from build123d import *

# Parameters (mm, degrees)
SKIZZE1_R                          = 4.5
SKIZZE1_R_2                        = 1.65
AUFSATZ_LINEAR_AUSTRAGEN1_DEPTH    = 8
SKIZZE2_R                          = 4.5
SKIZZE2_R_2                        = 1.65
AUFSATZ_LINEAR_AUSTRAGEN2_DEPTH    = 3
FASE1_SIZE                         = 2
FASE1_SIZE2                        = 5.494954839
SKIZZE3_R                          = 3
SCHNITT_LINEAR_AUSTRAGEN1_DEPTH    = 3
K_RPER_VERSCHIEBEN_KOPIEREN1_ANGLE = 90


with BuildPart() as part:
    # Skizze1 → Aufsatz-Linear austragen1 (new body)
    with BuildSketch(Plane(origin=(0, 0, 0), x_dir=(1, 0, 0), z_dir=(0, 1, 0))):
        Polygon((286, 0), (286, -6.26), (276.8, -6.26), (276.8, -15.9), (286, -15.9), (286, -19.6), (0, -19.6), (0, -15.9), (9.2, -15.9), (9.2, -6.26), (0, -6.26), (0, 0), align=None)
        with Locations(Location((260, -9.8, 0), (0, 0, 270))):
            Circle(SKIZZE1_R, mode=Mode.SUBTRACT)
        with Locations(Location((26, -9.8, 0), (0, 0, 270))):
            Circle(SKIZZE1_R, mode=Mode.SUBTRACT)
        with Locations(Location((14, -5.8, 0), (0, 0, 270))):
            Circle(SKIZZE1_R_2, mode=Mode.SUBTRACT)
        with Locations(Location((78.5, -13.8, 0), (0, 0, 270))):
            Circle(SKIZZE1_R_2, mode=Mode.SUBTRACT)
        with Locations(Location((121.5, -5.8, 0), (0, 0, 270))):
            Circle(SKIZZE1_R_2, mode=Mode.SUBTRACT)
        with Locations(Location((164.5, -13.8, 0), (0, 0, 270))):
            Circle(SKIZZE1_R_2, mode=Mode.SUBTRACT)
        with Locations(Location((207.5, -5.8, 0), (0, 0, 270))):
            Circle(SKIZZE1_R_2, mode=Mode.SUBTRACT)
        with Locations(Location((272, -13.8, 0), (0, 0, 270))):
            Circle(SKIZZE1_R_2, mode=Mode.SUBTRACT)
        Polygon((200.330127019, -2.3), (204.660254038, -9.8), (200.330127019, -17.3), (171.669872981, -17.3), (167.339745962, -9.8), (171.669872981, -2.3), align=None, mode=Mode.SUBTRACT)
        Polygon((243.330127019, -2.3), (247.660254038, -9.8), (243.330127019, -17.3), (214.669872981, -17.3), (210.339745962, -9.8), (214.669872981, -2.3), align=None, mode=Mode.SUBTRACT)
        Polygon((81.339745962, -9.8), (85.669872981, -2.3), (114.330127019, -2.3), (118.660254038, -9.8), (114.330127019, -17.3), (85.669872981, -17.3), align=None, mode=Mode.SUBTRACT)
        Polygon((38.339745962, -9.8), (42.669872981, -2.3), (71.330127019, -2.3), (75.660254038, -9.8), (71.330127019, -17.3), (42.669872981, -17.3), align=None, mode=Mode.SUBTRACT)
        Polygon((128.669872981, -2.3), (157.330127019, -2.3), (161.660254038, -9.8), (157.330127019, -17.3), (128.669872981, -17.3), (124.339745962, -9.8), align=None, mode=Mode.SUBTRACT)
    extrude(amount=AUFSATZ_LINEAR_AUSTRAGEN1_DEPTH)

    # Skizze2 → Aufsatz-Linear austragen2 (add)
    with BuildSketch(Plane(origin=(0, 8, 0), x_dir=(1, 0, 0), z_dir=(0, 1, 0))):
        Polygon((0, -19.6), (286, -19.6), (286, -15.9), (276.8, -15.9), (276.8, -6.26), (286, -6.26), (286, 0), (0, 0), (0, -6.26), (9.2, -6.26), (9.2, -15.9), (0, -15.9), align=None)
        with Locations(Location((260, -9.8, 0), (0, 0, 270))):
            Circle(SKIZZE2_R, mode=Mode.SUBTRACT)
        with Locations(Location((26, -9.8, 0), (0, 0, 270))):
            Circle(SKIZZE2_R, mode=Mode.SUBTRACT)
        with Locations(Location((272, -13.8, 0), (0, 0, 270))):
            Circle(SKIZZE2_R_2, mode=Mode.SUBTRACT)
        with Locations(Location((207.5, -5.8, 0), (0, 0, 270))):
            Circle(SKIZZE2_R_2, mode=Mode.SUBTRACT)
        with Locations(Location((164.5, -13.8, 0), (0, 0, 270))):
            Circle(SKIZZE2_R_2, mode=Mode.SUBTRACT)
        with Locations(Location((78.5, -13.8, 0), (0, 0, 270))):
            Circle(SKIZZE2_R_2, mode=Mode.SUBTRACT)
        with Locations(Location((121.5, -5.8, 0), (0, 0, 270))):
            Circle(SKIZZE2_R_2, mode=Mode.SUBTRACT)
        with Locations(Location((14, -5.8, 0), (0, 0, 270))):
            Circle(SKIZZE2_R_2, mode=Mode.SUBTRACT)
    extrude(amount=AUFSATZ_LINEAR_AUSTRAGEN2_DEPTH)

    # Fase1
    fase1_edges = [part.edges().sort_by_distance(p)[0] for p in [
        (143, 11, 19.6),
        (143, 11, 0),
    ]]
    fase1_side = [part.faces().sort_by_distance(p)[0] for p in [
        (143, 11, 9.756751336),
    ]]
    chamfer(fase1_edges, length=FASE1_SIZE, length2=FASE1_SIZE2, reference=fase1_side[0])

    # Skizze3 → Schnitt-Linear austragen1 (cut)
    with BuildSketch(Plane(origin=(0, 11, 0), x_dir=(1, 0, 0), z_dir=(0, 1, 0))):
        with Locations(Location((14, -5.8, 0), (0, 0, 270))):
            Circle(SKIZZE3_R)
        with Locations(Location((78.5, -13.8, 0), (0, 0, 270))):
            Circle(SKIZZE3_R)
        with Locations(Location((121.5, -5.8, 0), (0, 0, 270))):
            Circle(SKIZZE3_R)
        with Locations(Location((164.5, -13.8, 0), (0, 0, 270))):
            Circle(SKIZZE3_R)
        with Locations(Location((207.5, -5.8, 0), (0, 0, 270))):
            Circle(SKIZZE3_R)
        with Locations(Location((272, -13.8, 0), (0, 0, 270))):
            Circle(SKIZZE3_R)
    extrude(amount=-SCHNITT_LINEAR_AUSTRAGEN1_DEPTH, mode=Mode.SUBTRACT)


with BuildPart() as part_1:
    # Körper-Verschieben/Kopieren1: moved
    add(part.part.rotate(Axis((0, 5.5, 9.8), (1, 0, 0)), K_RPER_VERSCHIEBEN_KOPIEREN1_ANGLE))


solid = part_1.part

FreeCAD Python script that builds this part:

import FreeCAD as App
import Part
import Sketcher
Q = App.Units.Quantity


def edges_at(feature, points):
    """Names of the edges that pass closest to the given points."""
    edges = feature.Shape.Edges
    near = lambda p: min(range(len(edges)), key=lambda i: edges[i].distToShape(Part.Vertex(*p))[0])
    return sorted({f"Edge{near(p) + 1}" for p in points})


def add_polygon(sketch, points):
    """Adds a closed chain of lines whose ends are joined by coincident constraints."""
    first, n = sketch.GeometryCount, len(points)
    for a, b in zip(points, points[1:] + points[:1]):
        sketch.addGeometry(Part.LineSegment(App.Vector(*a, 0), App.Vector(*b, 0)), False)
    for i in range(n):
        sketch.addConstraint(Sketcher.Constraint("Coincident", first + i, 2, first + (i + 1) % n, 1))

doc = App.newDocument("Part")
body = doc.addObject("PartDesign::Body", "Body")

sketch1 = doc.addObject("Sketcher::SketchObject", "Sketch")
body.addObject(sketch1)
sketch1.AttachmentSupport = (doc.XZ_Plane, [""])
sketch1.MapMode = "FlatFace"
add_polygon(sketch1, [(286, 6.3), (286, 0), (0, 0), (0, 6.3), (9.2, 6.3), (9.2, 15.9), (0, 15.9), (0, 19.6), (286, 19.6), (286, 15.9), (276.8, 15.9), (276.8, 6.3)])
sketch1.addGeometry(Part.Circle(App.Vector(272, 13.8, 0), App.Vector(0, 0, 1), 1.6), False)
sketch1.addGeometry(Part.Circle(App.Vector(164.5, 13.8, 0), App.Vector(0, 0, 1), 1.6), False)
sketch1.addGeometry(Part.Circle(App.Vector(78.5, 13.8, 0), App.Vector(0, 0, 1), 1.6), False)
sketch1.addGeometry(Part.Circle(App.Vector(260, 9.8, 0), App.Vector(0, 0, 1), 4.5), False)
add_polygon(sketch1, [(243.3, 2.3), (247.7, 9.8), (243.3, 17.3), (214.7, 17.3), (210.3, 9.8), (214.7, 2.3)])
add_polygon(sketch1, [(200.3, 2.3), (204.7, 9.8), (200.3, 17.3), (171.7, 17.3), (167.3, 9.8), (171.7, 2.3)])
sketch1.addGeometry(Part.Circle(App.Vector(207.5, 5.8, 0), App.Vector(0, 0, 1), 1.6), False)
add_polygon(sketch1, [(128.7, 2.3), (157.3, 2.3), (161.7, 9.8), (157.3, 17.3), (128.7, 17.3), (124.3, 9.8)])
add_polygon(sketch1, [(81.3, 9.8), (85.7, 2.3), (114.3, 2.3), (118.7, 9.8), (114.3, 17.3), (85.7, 17.3)])
add_polygon(sketch1, [(38.3, 9.8), (42.7, 2.3), (71.3, 2.3), (75.7, 9.8), (71.3, 17.3), (42.7, 17.3)])
sketch1.addGeometry(Part.Circle(App.Vector(26, 9.8, 0), App.Vector(0, 0, 1), 4.5), False)
sketch1.addGeometry(Part.Circle(App.Vector(121.5, 5.8, 0), App.Vector(0, 0, 1), 1.6), False)
sketch1.addGeometry(Part.Circle(App.Vector(14, 5.8, 0), App.Vector(0, 0, 1), 1.6), False)
sketch1.addConstraint([
    Sketcher.Constraint("Vertical", 0),
    Sketcher.Constraint("Horizontal", 1),
    Sketcher.Constraint("Vertical", 2),
    Sketcher.Constraint("Horizontal", 3),
    Sketcher.Constraint("Vertical", 4),
    Sketcher.Constraint("Horizontal", 5),
    Sketcher.Constraint("Vertical", 6),
    Sketcher.Constraint("Horizontal", 7),
    Sketcher.Constraint("Vertical", 8),
    Sketcher.Constraint("Horizontal", 9),
    Sketcher.Constraint("Vertical", 10),
    Sketcher.Constraint("Horizontal", 11),
    Sketcher.Constraint("Horizontal", 18),
    Sketcher.Constraint("Horizontal", 21),
    Sketcher.Constraint("Horizontal", 24),
    Sketcher.Constraint("Horizontal", 27),
    Sketcher.Constraint("Horizontal", 29),
    Sketcher.Constraint("Horizontal", 32),
    Sketcher.Constraint("Horizontal", 36),
    Sketcher.Constraint("Horizontal", 39),
    Sketcher.Constraint("Horizontal", 42),
    Sketcher.Constraint("Horizontal", 45),
    Sketcher.Constraint("Coincident", 1, 2, -1, 1),
    Sketcher.Constraint("Equal", 12, 13),
    Sketcher.Constraint("Equal", 13, 14),
    Sketcher.Constraint("Equal", 14, 28),
    Sketcher.Constraint("Equal", 15, 47),
    Sketcher.Constraint("Equal", 28, 48),
    Sketcher.Constraint("Equal", 48, 49),
    Sketcher.Constraint("PointOnObject", 5, 2, -2),
    Sketcher.Constraint("Parallel", 16, 19),
    Sketcher.Constraint("Parallel", 17, 20),
    Sketcher.Constraint("Parallel", 19, 22),
    Sketcher.Constraint("Parallel", 20, 23),
    Sketcher.Constraint("Parallel", 22, 25),
    Sketcher.Constraint("Parallel", 23, 26),
    Sketcher.Constraint("Parallel", 25, 30),
    Sketcher.Constraint("Parallel", 26, 31),
    Sketcher.Constraint("Parallel", 30, 33),
    Sketcher.Constraint("Parallel", 31, 34),
    Sketcher.Constraint("Parallel", 34, 35),
    Sketcher.Constraint("Parallel", 33, 37),
    Sketcher.Constraint("Parallel", 35, 38),
    Sketcher.Constraint("Parallel", 37, 40),
    Sketcher.Constraint("Parallel", 38, 41),
    Sketcher.Constraint("Parallel", 40, 43),
    Sketcher.Constraint("Parallel", 41, 44),
    Sketcher.Constraint("Parallel", 43, 46),
    Sketcher.Constraint("Horizontal", 12, 3, 13, 3),
    Sketcher.Constraint("Horizontal", 13, 3, 14, 3),
    Sketcher.Constraint("Horizontal", 15, 3, 47, 3),
    Sketcher.Constraint("Horizontal", 28, 3, 48, 3),
    Sketcher.Constraint("Horizontal", 48, 3, 49, 3),
    Sketcher.Constraint("Horizontal", 5, 2, 8, 2),
    Sketcher.Constraint("Horizontal", 3, 2, 10, 2),
    Sketcher.Constraint("Horizontal", 47, 3, 16, 2),
    Sketcher.Constraint("Horizontal", 16, 2, 19, 2),
    Sketcher.Constraint("Horizontal", 19, 2, 22, 2),
    Sketcher.Constraint("Horizontal", 18, 2, 23, 2),
    Sketcher.Constraint("Horizontal", 22, 2, 25, 2),
    Sketcher.Constraint("Horizontal", 21, 2, 26, 2),
    Sketcher.Constraint("Horizontal", 27, 2, 29, 2),
    Sketcher.Constraint("Horizontal", 25, 2, 30, 2),
    Sketcher.Constraint("Horizontal", 24, 2, 31, 2),
    Sketcher.Constraint("Horizontal", 30, 2, 33, 2),
    Sketcher.Constraint("Horizontal", 34, 2, 35, 2),
    Sketcher.Constraint("Horizontal", 33, 2, 37, 2),
    Sketcher.Constraint("Horizontal", 32, 2, 38, 2),
    Sketcher.Constraint("Horizontal", 37, 2, 40, 2),
    Sketcher.Constraint("Horizontal", 36, 2, 41, 2),
    Sketcher.Constraint("Horizontal", 40, 2, 43, 2),
    Sketcher.Constraint("Horizontal", 39, 2, 44, 2),
    Sketcher.Constraint("Horizontal", 43, 2, 46, 2),
    Sketcher.Constraint("Vertical", 0, 2, 7, 2),
    Sketcher.Constraint("Vertical", 18, 2, 20, 2),
    Sketcher.Constraint("Vertical", 17, 2, 21, 2),
    Sketcher.Constraint("Equal", 5, 9),
    Sketcher.Constraint("Equal", 21, 24),
    Sketcher.Constraint("Equal", 27, 29),
    Sketcher.Constraint("Equal", 32, 36),
    Sketcher.Constraint("Equal", 39, 42),
    Sketcher.Constraint("Diameter", 15, Q("9 mm")),
    Sketcher.Constraint("Diameter", 12, Q("3.3 mm")),
    Sketcher.Constraint("DistanceX", 1, 2, 1, 1, Q("286 mm")),
    Sketcher.Constraint("Angle", 16, Q("60 deg")),
    Sketcher.Constraint("DistanceX", 3, 1, 3, 2, Q("9.2 mm")),
    Sketcher.Constraint("DistanceY", 6, 1, 6, 2, Q("3.7 mm")),
    Sketcher.Constraint("DistanceX", -1, 1, 12, 3, Q("272 mm")),
    Sketcher.Constraint("DistanceX", -1, 1, 15, 3, Q("260 mm")),
    Sketcher.Constraint("DistanceX", -1, 1, 47, 3, Q("26 mm")),
    Sketcher.Constraint("DistanceX", -1, 1, 49, 3, Q("14 mm")),
    Sketcher.Constraint("DistanceX", 14, 3, 13, 3, Q("86 mm")),
    Sketcher.Constraint("DistanceY", 15, 3, 12, 3, Q("4 mm")),
    Sketcher.Constraint("DistanceX", 13, 3, 28, 3, Q("43 mm")),
    Sketcher.Constraint("DistanceY", 28, 3, 13, 3, Q("8 mm")),
    Sketcher.Constraint("DistanceX", 48, 3, 13, 3, Q("43 mm")),
    Sketcher.Constraint("DistanceY", 20, 2, 18, 2, Q("15 mm")),
    Sketcher.Constraint("DistanceX", 35, 2, 34, 2, Q("43 mm")),
    Sketcher.Constraint("DistanceY", 0, 2, 0, 1, Q("6.26 mm")),
    Sketcher.Constraint("DistanceY", 4, 1, 4, 2, Q("9.64 mm")),
    Sketcher.Constraint("DistanceY", -1, 1, 12, 3, Q("13.8 mm")),
    Sketcher.Constraint("DistanceX", -1, 1, 13, 3, Q("164.5 mm")),
    Sketcher.Constraint("DistanceX", 18, 2, 18, 1, Q("28.660254 mm")),
    Sketcher.Constraint("DistanceX", 22, 2, 19, 2, Q("5.679492 mm")),
    Sketcher.Constraint("DistanceX", 29, 2, 25, 2, Q("10.009619 mm")),
    Sketcher.Constraint("DistanceX", 42, 2, 40, 2, Q("10.009619 mm")),
    Sketcher.Constraint("DistanceX", -1, 1, 16, 2, Q("247.660254 mm")),
])
pad1 = doc.addObject("PartDesign::Pad", "Pad")
body.addObject(pad1)
pad1.Profile = sketch1
pad1.Length = 8
pad1.Reversed = True

sketch2 = doc.addObject("Sketcher::SketchObject", "Sketch001")
body.addObject(sketch2)
sketch2.AttachmentSupport = (doc.XZ_Plane, [""])
sketch2.MapMode = "FlatFace"
sketch2.AttachmentOffset = App.Placement(App.Vector(0, 0, -8), App.Rotation())
add_polygon(sketch2, [(0, 19.6), (286, 19.6), (286, 15.9), (276.8, 15.9), (276.8, 6.3), (286, 6.3), (286, 0), (0, 0), (0, 6.3), (9.2, 6.3), (9.2, 15.9), (0, 15.9)])
sketch2.addGeometry(Part.Circle(App.Vector(78.5, 13.8, 0), App.Vector(0, 0, 1), 1.6), False)
sketch2.addGeometry(Part.Circle(App.Vector(164.5, 13.8, 0), App.Vector(0, 0, 1), 1.6), False)
sketch2.addGeometry(Part.Circle(App.Vector(272, 13.8, 0), App.Vector(0, 0, 1), 1.6), False)
sketch2.addGeometry(Part.Circle(App.Vector(26, 9.8, 0), App.Vector(0, 0, 1), 4.5), False)
sketch2.addGeometry(Part.Circle(App.Vector(14, 5.8, 0), App.Vector(0, 0, 1), 1.6), False)
sketch2.addGeometry(Part.Circle(App.Vector(121.5, 5.8, 0), App.Vector(0, 0, 1), 1.6), False)
sketch2.addGeometry(Part.Circle(App.Vector(260, 9.8, 0), App.Vector(0, 0, 1), 4.5), False)
sketch2.addGeometry(Part.Circle(App.Vector(207.5, 5.8, 0), App.Vector(0, 0, 1), 1.6), False)
sketch2.addConstraint([
    Sketcher.Constraint("Horizontal", 0),
    Sketcher.Constraint("Vertical", 1),
    Sketcher.Constraint("Horizontal", 2),
    Sketcher.Constraint("Vertical", 3),
    Sketcher.Constraint("Horizontal", 4),
    Sketcher.Constraint("Vertical", 5),
    Sketcher.Constraint("Horizontal", 6),
    Sketcher.Constraint("Vertical", 7),
    Sketcher.Constraint("Horizontal", 8),
    Sketcher.Constraint("Vertical", 9),
    Sketcher.Constraint("Horizontal", 10),
    Sketcher.Constraint("Vertical", 11),
    Sketcher.Constraint("Coincident", 6, 2, -1, 1),
    Sketcher.Constraint("Equal", 12, 13),
    Sketcher.Constraint("Equal", 13, 14),
    Sketcher.Constraint("Equal", 14, 16),
    Sketcher.Constraint("Equal", 16, 17),
    Sketcher.Constraint("Equal", 15, 18),
    Sketcher.Constraint("Equal", 17, 19),
    Sketcher.Constraint("PointOnObject", 10, 2, -2),
    Sketcher.Constraint("Horizontal", 12, 3, 13, 3),
    Sketcher.Constraint("Horizontal", 13, 3, 14, 3),
    Sketcher.Constraint("Horizontal", 16, 3, 17, 3),
    Sketcher.Constraint("Horizontal", 15, 3, 18, 3),
    Sketcher.Constraint("Horizontal", 17, 3, 19, 3),
    Sketcher.Constraint("Horizontal", 4, 2, 7, 2),
    Sketcher.Constraint("Horizontal", 2, 2, 9, 2),
    Sketcher.Constraint("Vertical", 1, 2, 4, 2),
    Sketcher.Constraint("Equal", 4, 8),
    Sketcher.Constraint("Diameter", 15, Q("9 mm")),
    Sketcher.Constraint("Diameter", 12, Q("3.3 mm")),
    Sketcher.Constraint("DistanceX", 0, 1, 0, 2, Q("286 mm")),
    Sketcher.Constraint("DistanceX", 2, 2, 2, 1, Q("9.2 mm")),
    Sketcher.Constraint("DistanceY", 1, 2, 1, 1, Q("3.7 mm")),
    Sketcher.Constraint("DistanceX", -1, 1, 14, 3, Q("272 mm")),
    Sketcher.Constraint("DistanceX", -1, 1, 15, 3, Q("26 mm")),
    Sketcher.Constraint("DistanceX", -1, 1, 16, 3, Q("14 mm")),
    Sketcher.Constraint("DistanceX", -1, 1, 18, 3, Q("260 mm")),
    Sketcher.Constraint("DistanceX", 12, 3, 13, 3, Q("86 mm")),
    Sketcher.Constraint("DistanceY", 15, 3, 12, 3, Q("4 mm")),
    Sketcher.Constraint("DistanceY", 16, 3, 15, 3, Q("4 mm")),
    Sketcher.Constraint("DistanceX", 12, 3, 17, 3, Q("43 mm")),
    Sketcher.Constraint("DistanceX", 13, 3, 19, 3, Q("43 mm")),
    Sketcher.Constraint("DistanceY", 3, 2, 3, 1, Q("9.64 mm")),
    Sketcher.Constraint("DistanceY", 5, 2, 5, 1, Q("6.26 mm")),
    Sketcher.Constraint("DistanceX", -1, 1, 12, 3, Q("78.5 mm")),
    Sketcher.Constraint("DistanceY", -1, 1, 12, 3, Q("13.8 mm")),
])
pad2 = doc.addObject("PartDesign::Pad", "Pad001")
body.addObject(pad2)
pad2.Profile = sketch2
pad2.Length = 3
pad2.Reversed = True
doc.recompute()

chamfer = doc.addObject("PartDesign::Chamfer", "Chamfer")
body.addObject(chamfer)
chamfer.Base = (pad2, edges_at(pad2, [(143, 11, 19.6), (143, 11, 0)]))
chamfer.ChamferType = "Two distances"
chamfer.Size = 2
chamfer.Size2 = 5.494955

sketch3 = doc.addObject("Sketcher::SketchObject", "Sketch002")
body.addObject(sketch3)
sketch3.AttachmentSupport = (doc.XZ_Plane, [""])
sketch3.MapMode = "FlatFace"
sketch3.AttachmentOffset = App.Placement(App.Vector(0, 0, -11), App.Rotation())
sketch3.addGeometry([
    Part.Circle(App.Vector(14, 5.8, 0), App.Vector(0, 0, 1), 3),
    Part.Circle(App.Vector(78.5, 13.8, 0), App.Vector(0, 0, 1), 3),
    Part.Circle(App.Vector(121.5, 5.8, 0), App.Vector(0, 0, 1), 3),
    Part.Circle(App.Vector(164.5, 13.8, 0), App.Vector(0, 0, 1), 3),
    Part.Circle(App.Vector(207.5, 5.8, 0), App.Vector(0, 0, 1), 3),
    Part.Circle(App.Vector(272, 13.8, 0), App.Vector(0, 0, 1), 3),
], False)
sketch3.addConstraint([
    Sketcher.Constraint("Equal", 0, 1),
    Sketcher.Constraint("Equal", 1, 2),
    Sketcher.Constraint("Equal", 2, 3),
    Sketcher.Constraint("Equal", 3, 4),
    Sketcher.Constraint("Equal", 4, 5),
    Sketcher.Constraint("Horizontal", 0, 3, 2, 3),
    Sketcher.Constraint("Horizontal", 1, 3, 3, 3),
    Sketcher.Constraint("Horizontal", 2, 3, 4, 3),
    Sketcher.Constraint("Horizontal", 3, 3, 5, 3),
    Sketcher.Constraint("Diameter", 0, Q("6 mm")),
    Sketcher.Constraint("DistanceX", -1, 1, 0, 3, Q("14 mm")),
    Sketcher.Constraint("DistanceX", -1, 1, 5, 3, Q("272 mm")),
    Sketcher.Constraint("DistanceY", 0, 3, 1, 3, Q("8 mm")),
    Sketcher.Constraint("DistanceX", 1, 3, 2, 3, Q("43 mm")),
    Sketcher.Constraint("DistanceX", 2, 3, 3, 3, Q("43 mm")),
    Sketcher.Constraint("DistanceX", 3, 3, 4, 3, Q("43 mm")),
    Sketcher.Constraint("DistanceY", -1, 1, 0, 3, Q("5.8 mm")),
    Sketcher.Constraint("DistanceX", -1, 1, 1, 3, Q("78.5 mm")),
])
pocket1 = doc.addObject("PartDesign::Pocket", "Pocket")
body.addObject(pocket1)
pocket1.Profile = sketch3
pocket1.Length = 3
pocket1.Reversed = True
body2 = doc.addObject("PartDesign::Body", "Body001")
doc.recompute()

body.Placement = App.Placement(App.Vector(0, 15.3, 4.3), App.Rotation(App.Vector(1, 0, 0), 90))
boolean = doc.addObject("PartDesign::Boolean", "Boolean")
body2.addObject(boolean)
boolean.Type = "Fuse"
boolean.addObjects([body])

doc.recompute()
